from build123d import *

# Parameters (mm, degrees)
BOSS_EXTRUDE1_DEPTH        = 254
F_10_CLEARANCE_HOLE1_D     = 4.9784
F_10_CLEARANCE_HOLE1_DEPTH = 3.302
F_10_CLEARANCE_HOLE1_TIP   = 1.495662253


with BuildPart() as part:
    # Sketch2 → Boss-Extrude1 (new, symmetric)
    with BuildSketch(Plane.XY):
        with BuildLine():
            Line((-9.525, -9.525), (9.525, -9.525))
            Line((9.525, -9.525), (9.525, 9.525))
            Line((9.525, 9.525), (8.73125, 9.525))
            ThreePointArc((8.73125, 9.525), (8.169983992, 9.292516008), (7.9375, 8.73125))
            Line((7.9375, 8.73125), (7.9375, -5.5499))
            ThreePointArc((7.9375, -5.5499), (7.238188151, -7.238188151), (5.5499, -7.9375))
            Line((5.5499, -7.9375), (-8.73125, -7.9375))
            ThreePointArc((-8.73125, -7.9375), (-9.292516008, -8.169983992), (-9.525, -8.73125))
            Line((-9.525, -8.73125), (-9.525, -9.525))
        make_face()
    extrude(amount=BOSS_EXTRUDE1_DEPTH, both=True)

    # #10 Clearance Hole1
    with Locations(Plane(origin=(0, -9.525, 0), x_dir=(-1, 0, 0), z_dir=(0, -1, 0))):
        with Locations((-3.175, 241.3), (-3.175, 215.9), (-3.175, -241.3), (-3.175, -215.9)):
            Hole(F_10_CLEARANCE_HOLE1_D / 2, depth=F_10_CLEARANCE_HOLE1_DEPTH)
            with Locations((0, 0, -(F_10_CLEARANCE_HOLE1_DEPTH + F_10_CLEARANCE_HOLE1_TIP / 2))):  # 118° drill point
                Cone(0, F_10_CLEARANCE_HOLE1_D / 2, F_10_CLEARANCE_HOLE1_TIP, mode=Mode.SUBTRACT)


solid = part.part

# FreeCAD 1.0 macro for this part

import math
import FreeCAD as App
import Part
import Sketcher

V = App.Vector
Q = App.Units.Quantity

doc = App.newDocument("Part")
body = doc.addObject("PartDesign::Body", "Body")

sketch1 = body.newObject("Sketcher::SketchObject", "Sketch")
sketch1.AttachmentSupport = (doc.getObject("XY_Plane"), [""])
sketch1.MapMode = "FlatFace"
sketch1.addGeometry(Part.LineSegment(V(-9.5, -9.5, 0), V(9.5, -9.5, 0)), False)
sketch1.addGeometry(Part.LineSegment(V(9.5, -9.5, 0), V(9.5, 9.5, 0)), False)
sketch1.addGeometry(Part.LineSegment(V(9.5, 9.5, 0), V(8.7, 9.5, 0)), False)
sketch1.addGeometry(Part.ArcOfCircle(Part.Circle(V(8.7, 8.7, 0), V(0, 0, 1), 0.8), math.radians(90), math.radians(180)), False)
sketch1.addGeometry(Part.LineSegment(V(7.9, 8.7, 0), V(7.9, -5.5, 0)), False)
sketch1.addGeometry(Part.ArcOfCircle(Part.Circle(V(5.5, -5.5, 0), V(0, 0, 1), 2.4), math.radians(-90), math.radians(0)), False)
sketch1.addGeometry(Part.LineSegment(V(5.5, -7.9, 0), V(-8.7, -7.9, 0)), False)
sketch1.addGeometry(Part.ArcOfCircle(Part.Circle(V(-8.7, -8.7, 0), V(0, 0, 1), 0.8), math.radians(90), math.radians(180)), False)
sketch1.addGeometry(Part.LineSegment(V(-9.5, -8.7, 0), V(-9.5, -9.5, 0)), False)
sketch1.addConstraint(Sketcher.Constraint("Coincident", 0, 2, 1, 1))
sketch1.addConstraint(Sketcher.Constraint("Coincident", 1, 2, 2, 1))
sketch1.addConstraint(Sketcher.Constraint("Tangent", 2, 2, 3, 1))
sketch1.addConstraint(Sketcher.Constraint("Tangent", 3, 2, 4, 1))
sketch1.addConstraint(Sketcher.Constraint("Tangent", 4, 2, 5, 2))
sketch1.addConstraint(Sketcher.Constraint("Tangent", 5, 1, 6, 1))
sketch1.addConstraint(Sketcher.Constraint("Tangent", 6, 2, 7, 1))
sketch1.addConstraint(Sketcher.Constraint("Tangent", 7, 2, 8, 1))
sketch1.addConstraint(Sketcher.Constraint("Coincident", 8, 2, 0, 1))
sketch1.addConstraint(Sketcher.Constraint("Horizontal", 0))
sketch1.addConstraint(Sketcher.Constraint("Vertical", 1))
sketch1.addConstraint(Sketcher.Constraint("Horizontal", 2))
sketch1.addConstraint(Sketcher.Constraint("Vertical", 4))
sketch1.addConstraint(Sketcher.Constraint("Horizontal", 6))
sketch1.addConstraint(Sketcher.Constraint("Vertical", 8))
sketch1.addConstraint(Sketcher.Constraint("Equal", 3, 7))
sketch1.addConstraint(Sketcher.Constraint("Symmetric", 3, 3, 7, 3, -1, 1))
sketch1.addConstraint(Sketcher.Constraint("Symmetric", 1, 2, 8, 2, -1, 1))
sketch1.addConstraint(Sketcher.Constraint("Equal", 0, 1))
sketch1.addConstraint(Sketcher.Constraint("Radius", 3, Q("0.03125 in")))
sketch1.addConstraint(Sketcher.Constraint("Radius", 5, Q("0.094 in")))
sketch1.addConstraint(Sketcher.Constraint("DistanceX", 0, 1, 0, 2, Q("0.75 in")))
pad1 = body.newObject("PartDesign::Pad", "Pad")
pad1.Profile = sketch1
pad1.Length = Q("20 in")
pad1.Midplane = True

sketch2 = body.newObject("Sketcher::SketchObject", "Sketch001")
sketch2.AttachmentSupport = (doc.getObject("XZ_Plane"), [""])
sketch2.MapMode = "FlatFace"
sketch2.AttachmentOffset = App.Placement(V(0, 0, 0.375 * 25.4), App.Rotation())
sketch2.addGeometry(Part.Circle(V(3.2, -241.3, 0), V(0, 0, 1), 2.5), False)
sketch2.addGeometry(Part.Circle(V(3.2, -215.9, 0), V(0, 0, 1), 2.5), False)
sketch2.addGeometry(Part.Circle(V(3.2, 241.3, 0), V(0, 0, 1), 2.5), False)
sketch2.addGeometry(Part.Circle(V(3.2, 215.9, 0), V(0, 0, 1), 2.5), False)
sketch2.addConstraint(Sketcher.Constraint("Equal", 0, 1))
sketch2.addConstraint(Sketcher.Constraint("Equal", 1, 2))
sketch2.addConstraint(Sketcher.Constraint("Equal", 2, 3))
sketch2.addConstraint(Sketcher.Constraint("Symmetric", 0, 3, 2, 3, -1))
sketch2.addConstraint(Sketcher.Constraint("Symmetric", 1, 3, 3, 3, -1))
sketch2.addConstraint(Sketcher.Constraint("Vertical", 0, 3, 1, 3))
sketch2.addConstraint(Sketcher.Constraint("Diameter", 0, Q("0.196 in")))
sketch2.addConstraint(Sketcher.Constraint("DistanceY", 0, 3, 1, 3, Q("1 in")))
sketch2.addConstraint(Sketcher.Constraint("DistanceY", 1, 3, 2, 3, Q("18 in")))
sketch2.addConstraint(Sketcher.Constraint("DistanceX", -1, 1, 0, 3, Q("0.125 in")))
doc.recompute()
hole = body.newObject("PartDesign::Hole", "Hole")
hole.Profile = sketch2
hole.ThreadType = "None"
hole.Diameter = Q("0.196 in")
hole.DepthType = "Dimension"
hole.Depth = Q("0.13 in")
hole.DrillPoint = "Angled"
hole.DrillPointAngle = 118

doc.recompute()
